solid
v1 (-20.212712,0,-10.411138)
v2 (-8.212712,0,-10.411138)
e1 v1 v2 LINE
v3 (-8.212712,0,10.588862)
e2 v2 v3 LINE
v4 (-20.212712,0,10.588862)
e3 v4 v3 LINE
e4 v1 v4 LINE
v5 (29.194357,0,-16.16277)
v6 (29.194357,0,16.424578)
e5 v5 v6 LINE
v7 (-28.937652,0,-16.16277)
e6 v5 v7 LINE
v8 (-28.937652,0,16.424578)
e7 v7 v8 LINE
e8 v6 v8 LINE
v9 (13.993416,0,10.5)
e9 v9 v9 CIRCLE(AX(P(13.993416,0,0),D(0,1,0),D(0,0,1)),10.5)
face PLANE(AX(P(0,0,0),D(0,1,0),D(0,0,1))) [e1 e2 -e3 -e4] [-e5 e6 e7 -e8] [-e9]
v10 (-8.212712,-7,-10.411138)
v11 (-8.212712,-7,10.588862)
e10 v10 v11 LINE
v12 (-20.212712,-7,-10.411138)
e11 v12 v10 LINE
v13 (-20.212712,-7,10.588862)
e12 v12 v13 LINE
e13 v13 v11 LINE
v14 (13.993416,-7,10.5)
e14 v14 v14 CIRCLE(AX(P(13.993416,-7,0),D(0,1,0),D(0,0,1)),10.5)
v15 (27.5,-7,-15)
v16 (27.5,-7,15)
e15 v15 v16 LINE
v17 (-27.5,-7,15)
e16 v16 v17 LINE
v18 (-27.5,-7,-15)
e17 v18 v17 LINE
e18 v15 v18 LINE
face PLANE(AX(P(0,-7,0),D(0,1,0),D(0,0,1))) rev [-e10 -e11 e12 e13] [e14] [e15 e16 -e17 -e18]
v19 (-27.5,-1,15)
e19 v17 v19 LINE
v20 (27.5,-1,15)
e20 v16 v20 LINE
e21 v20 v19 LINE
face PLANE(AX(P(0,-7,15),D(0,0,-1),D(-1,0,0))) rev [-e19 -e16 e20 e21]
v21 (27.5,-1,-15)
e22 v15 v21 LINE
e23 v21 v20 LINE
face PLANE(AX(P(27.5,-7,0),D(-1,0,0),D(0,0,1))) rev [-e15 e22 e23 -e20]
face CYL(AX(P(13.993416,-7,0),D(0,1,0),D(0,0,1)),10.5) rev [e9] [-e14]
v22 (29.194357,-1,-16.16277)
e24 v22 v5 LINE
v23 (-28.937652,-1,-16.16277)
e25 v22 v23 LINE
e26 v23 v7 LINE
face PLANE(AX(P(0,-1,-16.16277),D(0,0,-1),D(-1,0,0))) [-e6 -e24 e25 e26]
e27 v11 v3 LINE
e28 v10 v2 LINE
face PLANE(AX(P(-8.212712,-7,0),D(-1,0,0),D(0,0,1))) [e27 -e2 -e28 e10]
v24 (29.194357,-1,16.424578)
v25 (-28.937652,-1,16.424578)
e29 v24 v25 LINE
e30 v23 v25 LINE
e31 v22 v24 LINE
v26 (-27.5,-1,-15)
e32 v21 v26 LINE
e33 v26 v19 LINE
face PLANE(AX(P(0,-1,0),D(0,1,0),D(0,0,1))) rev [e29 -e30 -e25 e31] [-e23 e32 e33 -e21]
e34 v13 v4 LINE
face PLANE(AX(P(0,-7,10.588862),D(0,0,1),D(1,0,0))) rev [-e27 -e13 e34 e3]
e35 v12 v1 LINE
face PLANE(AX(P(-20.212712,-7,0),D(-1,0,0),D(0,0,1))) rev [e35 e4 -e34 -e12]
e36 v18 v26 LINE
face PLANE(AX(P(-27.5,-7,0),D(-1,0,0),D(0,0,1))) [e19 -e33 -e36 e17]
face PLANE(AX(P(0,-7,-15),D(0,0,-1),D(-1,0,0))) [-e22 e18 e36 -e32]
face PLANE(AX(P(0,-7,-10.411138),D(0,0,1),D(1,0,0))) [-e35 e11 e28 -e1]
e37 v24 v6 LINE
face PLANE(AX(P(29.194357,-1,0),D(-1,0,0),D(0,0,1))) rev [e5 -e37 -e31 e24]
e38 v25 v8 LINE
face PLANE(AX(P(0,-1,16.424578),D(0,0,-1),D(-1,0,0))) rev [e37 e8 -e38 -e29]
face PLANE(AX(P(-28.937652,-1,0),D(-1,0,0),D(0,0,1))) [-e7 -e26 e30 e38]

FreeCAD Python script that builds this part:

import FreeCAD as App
import Part
import Sketcher
from FreeCAD import Vector
Q = App.Units.Quantity

doc = App.newDocument("Part")
body = doc.addObject("PartDesign::Body", "Body")

# Sketch on XZ plane
sketch1 = doc.addObject("Sketcher::SketchObject", "Sketch")
body.addObject(sketch1)
sketch1.AttachmentSupport = (doc.XZ_Plane, [""])
sketch1.MapMode = "FlatFace"
sketch1.addGeometry([
    Part.LineSegment(Vector(-28, -15, 0), Vector(-28, 15, 0)),  # 0
    Part.LineSegment(Vector(-28, 15, 0), Vector(28, 15, 0)),  # 1
    Part.LineSegment(Vector(28, 15, 0), Vector(28, -15, 0)),  # 2
    Part.LineSegment(Vector(28, -15, 0), Vector(-28, -15, 0)),  # 3
    Part.LineSegment(Vector(-8, 11, 0), Vector(-20, 11, 0)),  # 4
    Part.LineSegment(Vector(-20, 11, 0), Vector(-20, -10, 0)),  # 5
    Part.LineSegment(Vector(-20, -10, 0), Vector(-8, -10, 0)),  # 6
    Part.LineSegment(Vector(-8, -10, 0), Vector(-8, 11, 0)),  # 7
    Part.Circle(Vector(14, 0, 0), Vector(0, 0, 1), 10),  # 8
], False)
sketch1.addConstraint([
    Sketcher.Constraint("Coincident", 0, 2, 1, 1),
    Sketcher.Constraint("Coincident", 1, 2, 2, 1),
    Sketcher.Constraint("Coincident", 2, 2, 3, 1),
    Sketcher.Constraint("Coincident", 3, 2, 0, 1),
    Sketcher.Constraint("Coincident", 4, 2, 5, 1),
    Sketcher.Constraint("Coincident", 5, 2, 6, 1),
    Sketcher.Constraint("Coincident", 6, 2, 7, 1),
    Sketcher.Constraint("Coincident", 7, 2, 4, 1),
    Sketcher.Constraint("Vertical", 0),
    Sketcher.Constraint("Horizontal", 1),
    Sketcher.Constraint("Vertical", 2),
    Sketcher.Constraint("Horizontal", 3),
    Sketcher.Constraint("Horizontal", 4),
    Sketcher.Constraint("Vertical", 5),
    Sketcher.Constraint("Horizontal", 6),
    Sketcher.Constraint("Vertical", 7),
    Sketcher.Constraint("Symmetric", 0, 2, 2, 2, -1, 1),
    Sketcher.Constraint("PointOnObject", 8, 3, -1),
    Sketcher.Constraint("Diameter", 8, Q("21 mm")),
    Sketcher.Constraint("DistanceX", 1, 1, 1, 2, Q("55 mm")),
    Sketcher.Constraint("DistanceX", 4, 2, 4, 1, Q("12 mm")),
    Sketcher.Constraint("DistanceY", 0, 1, 0, 2, Q("30 mm")),
    Sketcher.Constraint("DistanceY", 5, 2, 5, 1, Q("21 mm")),
    Sketcher.Constraint("DistanceX", 4, 2, -1, 1, Q("20.212712 mm")),
    Sketcher.Constraint("DistanceY", -1, 1, 4, 2, Q("10.588862 mm")),
    Sketcher.Constraint("DistanceX", -1, 1, 8, 3, Q("13.993416 mm")),
])
pad1 = doc.addObject("PartDesign::Pad", "Pad")
body.addObject(pad1)
pad1.Profile = sketch1
pad1.Length = 7

# Sketch on XZ plane
sketch2 = doc.addObject("Sketcher::SketchObject", "Sketch001")
body.addObject(sketch2)
sketch2.AttachmentSupport = (doc.XZ_Plane, [""])
sketch2.MapMode = "FlatFace"
sketch2.addGeometry([
    Part.LineSegment(Vector(-29, -16, 0), Vector(-29, 16, 0)),  # 0
    Part.LineSegment(Vector(-29, 16, 0), Vector(29, 16, 0)),  # 1
    Part.LineSegment(Vector(29, 16, 0), Vector(29, -16, 0)),  # 2
    Part.LineSegment(Vector(29, -16, 0), Vector(-29, -16, 0)),  # 3
    Part.LineSegment(Vector(28, 15, 0), Vector(-28, 15, 0)),  # 4
    Part.LineSegment(Vector(-28, 15, 0), Vector(-28, -15, 0)),  # 5
    Part.LineSegment(Vector(-28, -15, 0), Vector(28, -15, 0)),  # 6
    Part.LineSegment(Vector(28, -15, 0), Vector(28, 15, 0)),  # 7
], False)
sketch2.addConstraint([
    Sketcher.Constraint("Coincident", 0, 2, 1, 1),
    Sketcher.Constraint("Coincident", 1, 2, 2, 1),
    Sketcher.Constraint("Coincident", 2, 2, 3, 1),
    Sketcher.Constraint("Coincident", 3, 2, 0, 1),
    Sketcher.Constraint("Coincident", 4, 2, 5, 1),
    Sketcher.Constraint("Coincident", 5, 2, 6, 1),
    Sketcher.Constraint("Coincident", 6, 2, 7, 1),
    Sketcher.Constraint("Coincident", 7, 2, 4, 1),
    Sketcher.Constraint("Vertical", 0),
    Sketcher.Constraint("Horizontal", 1),
    Sketcher.Constraint("Vertical", 2),
    Sketcher.Constraint("Horizontal", 3),
    Sketcher.Constraint("Horizontal", 4),
    Sketcher.Constraint("Vertical", 5),
    Sketcher.Constraint("Horizontal", 6),
    Sketcher.Constraint("Vertical", 7),
    Sketcher.Constraint("Symmetric", 4, 2, 6, 2, -1, 1),
    Sketcher.Constraint("DistanceX", 4, 2, 4, 1, Q("55 mm")),
    Sketcher.Constraint("DistanceY", 5, 2, 5, 1, Q("30 mm")),
    Sketcher.Constraint("DistanceX", 1, 1, 1, 2, Q("58.132009 mm")),
    Sketcher.Constraint("DistanceY", 0, 1, 0, 2, Q("32.587348 mm")),
    Sketcher.Constraint("DistanceX", 0, 2, -1, 1, Q("28.937652 mm")),
    Sketcher.Constraint("DistanceY", 2, 2, -1, 1, Q("16.16277 mm")),
])
pad2 = doc.addObject("PartDesign::Pad", "Pad001")
body.addObject(pad2)
pad2.Profile = sketch2
pad2.Length = 1

doc.recompute()
